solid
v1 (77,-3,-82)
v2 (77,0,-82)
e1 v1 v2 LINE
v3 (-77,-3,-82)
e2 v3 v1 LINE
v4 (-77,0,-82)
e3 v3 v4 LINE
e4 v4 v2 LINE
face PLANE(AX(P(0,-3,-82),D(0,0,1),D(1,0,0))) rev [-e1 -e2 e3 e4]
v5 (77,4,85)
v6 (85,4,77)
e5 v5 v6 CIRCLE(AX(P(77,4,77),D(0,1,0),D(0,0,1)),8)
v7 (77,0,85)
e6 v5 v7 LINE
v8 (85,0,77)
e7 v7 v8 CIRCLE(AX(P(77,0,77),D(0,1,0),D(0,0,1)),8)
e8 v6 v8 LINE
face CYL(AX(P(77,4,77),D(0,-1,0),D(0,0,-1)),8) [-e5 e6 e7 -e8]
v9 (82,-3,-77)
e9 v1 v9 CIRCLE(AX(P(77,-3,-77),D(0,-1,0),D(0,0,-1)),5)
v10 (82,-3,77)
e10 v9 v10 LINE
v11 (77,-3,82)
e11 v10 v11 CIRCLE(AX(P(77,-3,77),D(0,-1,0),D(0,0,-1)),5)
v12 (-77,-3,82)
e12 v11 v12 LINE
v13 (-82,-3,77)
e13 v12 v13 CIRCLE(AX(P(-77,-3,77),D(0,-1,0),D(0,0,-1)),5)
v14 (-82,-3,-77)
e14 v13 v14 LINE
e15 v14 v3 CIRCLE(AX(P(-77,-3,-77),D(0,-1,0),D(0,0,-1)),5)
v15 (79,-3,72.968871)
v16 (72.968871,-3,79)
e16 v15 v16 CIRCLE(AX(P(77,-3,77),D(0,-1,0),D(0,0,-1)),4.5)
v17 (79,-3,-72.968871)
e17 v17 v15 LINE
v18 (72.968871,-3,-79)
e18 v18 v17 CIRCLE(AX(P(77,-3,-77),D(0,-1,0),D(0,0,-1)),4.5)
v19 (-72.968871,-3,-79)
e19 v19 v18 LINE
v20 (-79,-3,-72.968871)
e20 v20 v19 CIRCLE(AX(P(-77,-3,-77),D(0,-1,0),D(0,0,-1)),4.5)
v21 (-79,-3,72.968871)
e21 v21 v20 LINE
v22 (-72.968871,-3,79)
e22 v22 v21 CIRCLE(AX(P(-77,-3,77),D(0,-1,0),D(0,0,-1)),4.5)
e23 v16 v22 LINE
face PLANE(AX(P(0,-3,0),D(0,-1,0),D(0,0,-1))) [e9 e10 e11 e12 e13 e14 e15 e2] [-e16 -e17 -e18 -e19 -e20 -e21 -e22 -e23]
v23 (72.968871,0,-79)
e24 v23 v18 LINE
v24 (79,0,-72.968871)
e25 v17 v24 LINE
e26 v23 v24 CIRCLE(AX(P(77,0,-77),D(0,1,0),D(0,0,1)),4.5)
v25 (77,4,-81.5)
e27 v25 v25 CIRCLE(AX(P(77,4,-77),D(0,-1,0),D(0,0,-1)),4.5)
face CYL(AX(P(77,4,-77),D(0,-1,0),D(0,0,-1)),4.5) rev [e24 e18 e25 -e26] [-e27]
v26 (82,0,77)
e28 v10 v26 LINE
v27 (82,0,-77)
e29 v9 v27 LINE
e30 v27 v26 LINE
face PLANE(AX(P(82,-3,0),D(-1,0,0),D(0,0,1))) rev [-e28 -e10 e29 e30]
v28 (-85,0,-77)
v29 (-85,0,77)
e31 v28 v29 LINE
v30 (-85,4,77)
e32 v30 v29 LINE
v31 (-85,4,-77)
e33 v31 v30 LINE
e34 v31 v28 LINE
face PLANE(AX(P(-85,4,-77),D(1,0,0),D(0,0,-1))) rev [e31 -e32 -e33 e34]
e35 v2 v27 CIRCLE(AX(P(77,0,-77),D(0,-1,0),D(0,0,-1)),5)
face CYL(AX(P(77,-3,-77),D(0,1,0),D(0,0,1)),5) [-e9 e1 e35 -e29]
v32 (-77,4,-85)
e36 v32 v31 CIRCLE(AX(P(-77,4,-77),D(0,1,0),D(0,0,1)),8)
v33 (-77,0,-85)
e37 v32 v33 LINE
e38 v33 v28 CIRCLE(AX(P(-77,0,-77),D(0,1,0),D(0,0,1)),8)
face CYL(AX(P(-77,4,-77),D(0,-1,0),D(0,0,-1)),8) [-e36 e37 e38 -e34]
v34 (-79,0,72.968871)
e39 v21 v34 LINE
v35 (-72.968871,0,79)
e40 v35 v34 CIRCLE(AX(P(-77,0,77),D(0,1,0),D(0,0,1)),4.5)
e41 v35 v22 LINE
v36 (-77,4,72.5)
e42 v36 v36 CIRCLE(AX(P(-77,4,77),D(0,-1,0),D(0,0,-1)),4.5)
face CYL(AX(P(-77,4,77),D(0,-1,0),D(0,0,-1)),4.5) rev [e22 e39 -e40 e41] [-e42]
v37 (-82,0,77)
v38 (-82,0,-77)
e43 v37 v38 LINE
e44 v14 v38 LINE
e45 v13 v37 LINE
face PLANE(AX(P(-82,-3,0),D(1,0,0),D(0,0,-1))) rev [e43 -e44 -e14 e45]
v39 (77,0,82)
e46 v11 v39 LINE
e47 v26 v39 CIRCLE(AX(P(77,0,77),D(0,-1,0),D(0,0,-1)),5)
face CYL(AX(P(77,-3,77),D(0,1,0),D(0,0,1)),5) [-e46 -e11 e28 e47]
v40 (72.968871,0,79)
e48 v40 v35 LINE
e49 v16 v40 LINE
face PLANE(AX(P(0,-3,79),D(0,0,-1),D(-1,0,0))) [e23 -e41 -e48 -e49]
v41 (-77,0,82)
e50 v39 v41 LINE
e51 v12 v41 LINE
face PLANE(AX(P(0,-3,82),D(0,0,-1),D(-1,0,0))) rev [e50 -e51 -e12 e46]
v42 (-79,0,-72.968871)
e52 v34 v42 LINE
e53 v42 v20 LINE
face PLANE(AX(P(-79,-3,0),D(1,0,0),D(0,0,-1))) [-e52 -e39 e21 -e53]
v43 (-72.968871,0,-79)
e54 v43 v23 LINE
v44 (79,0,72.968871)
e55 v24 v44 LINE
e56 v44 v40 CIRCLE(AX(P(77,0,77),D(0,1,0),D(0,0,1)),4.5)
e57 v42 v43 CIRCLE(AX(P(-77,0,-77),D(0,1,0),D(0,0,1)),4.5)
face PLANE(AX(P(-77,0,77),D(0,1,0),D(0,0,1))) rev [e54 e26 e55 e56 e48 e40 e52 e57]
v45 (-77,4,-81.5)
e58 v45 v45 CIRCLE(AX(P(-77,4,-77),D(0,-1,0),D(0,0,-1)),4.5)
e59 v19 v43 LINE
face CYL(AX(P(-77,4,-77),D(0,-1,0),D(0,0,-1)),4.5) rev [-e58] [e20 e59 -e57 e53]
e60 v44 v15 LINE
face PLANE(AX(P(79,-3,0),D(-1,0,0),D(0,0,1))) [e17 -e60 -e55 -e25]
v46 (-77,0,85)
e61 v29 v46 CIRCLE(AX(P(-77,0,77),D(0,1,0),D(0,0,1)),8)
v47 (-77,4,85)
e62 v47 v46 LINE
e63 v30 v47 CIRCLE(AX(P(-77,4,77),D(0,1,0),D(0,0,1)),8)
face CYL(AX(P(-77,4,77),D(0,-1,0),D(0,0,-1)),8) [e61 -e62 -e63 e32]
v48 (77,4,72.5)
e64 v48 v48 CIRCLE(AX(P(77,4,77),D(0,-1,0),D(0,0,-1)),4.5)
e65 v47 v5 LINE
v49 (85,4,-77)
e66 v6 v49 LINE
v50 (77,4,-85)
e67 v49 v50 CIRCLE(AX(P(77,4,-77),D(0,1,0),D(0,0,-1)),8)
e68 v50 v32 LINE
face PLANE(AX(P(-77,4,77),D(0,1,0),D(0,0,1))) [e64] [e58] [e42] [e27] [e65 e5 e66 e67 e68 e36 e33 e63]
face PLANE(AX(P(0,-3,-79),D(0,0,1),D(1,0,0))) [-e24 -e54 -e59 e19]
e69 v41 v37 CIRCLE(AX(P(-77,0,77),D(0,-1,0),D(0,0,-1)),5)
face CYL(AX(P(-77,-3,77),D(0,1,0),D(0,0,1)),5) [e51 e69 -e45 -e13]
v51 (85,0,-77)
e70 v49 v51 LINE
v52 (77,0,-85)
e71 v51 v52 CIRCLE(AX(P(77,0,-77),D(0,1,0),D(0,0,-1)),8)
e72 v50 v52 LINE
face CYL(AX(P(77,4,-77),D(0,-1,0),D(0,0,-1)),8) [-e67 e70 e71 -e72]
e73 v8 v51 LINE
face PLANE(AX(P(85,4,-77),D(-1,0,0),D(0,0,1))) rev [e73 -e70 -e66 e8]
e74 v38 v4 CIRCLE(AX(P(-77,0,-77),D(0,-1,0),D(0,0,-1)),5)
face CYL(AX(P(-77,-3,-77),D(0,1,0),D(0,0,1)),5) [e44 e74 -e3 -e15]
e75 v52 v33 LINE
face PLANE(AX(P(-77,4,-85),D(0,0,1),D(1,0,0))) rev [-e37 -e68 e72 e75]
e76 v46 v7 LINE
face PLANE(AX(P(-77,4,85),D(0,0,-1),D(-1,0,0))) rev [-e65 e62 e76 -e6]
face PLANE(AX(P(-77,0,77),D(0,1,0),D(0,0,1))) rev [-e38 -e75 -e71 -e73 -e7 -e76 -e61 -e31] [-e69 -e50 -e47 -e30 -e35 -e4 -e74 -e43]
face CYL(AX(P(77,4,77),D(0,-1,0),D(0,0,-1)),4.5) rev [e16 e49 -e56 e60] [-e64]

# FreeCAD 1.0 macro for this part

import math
import FreeCAD as App
import Part
import Sketcher

doc = App.newDocument("Part")
body = doc.addObject("PartDesign::Body", "Body")

# Sketch on XZ plane
sketch1 = doc.addObject("Sketcher::SketchObject", "Sketch")
body.addObject(sketch1)
sketch1.AttachmentSupport = (doc.XZ_Plane, [""])
sketch1.MapMode = "FlatFace"
sketch1.addGeometry(Part.LineSegment(App.Vector(77, -85, 0), App.Vector(-77, -85, 0)), False)
sketch1.addGeometry(Part.ArcOfCircle(Part.Circle(App.Vector(-77, -77, 0), App.Vector(0, 0, 1), 8), math.radians(-180), math.radians(-90)), False)
sketch1.addGeometry(Part.LineSegment(App.Vector(-85, -77, 0), App.Vector(-85, 77, 0)), False)
sketch1.addGeometry(Part.ArcOfCircle(Part.Circle(App.Vector(-77, 77, 0), App.Vector(0, 0, 1), 8), math.radians(90), math.radians(180)), False)
sketch1.addGeometry(Part.LineSegment(App.Vector(-77, 85, 0), App.Vector(77, 85, 0)), False)
sketch1.addGeometry(Part.ArcOfCircle(Part.Circle(App.Vector(77, 77, 0), App.Vector(0, 0, 1), 8), math.radians(0), math.radians(90)), False)
sketch1.addGeometry(Part.LineSegment(App.Vector(85, 77, 0), App.Vector(85, -77, 0)), False)
sketch1.addGeometry(Part.ArcOfCircle(Part.Circle(App.Vector(77, -77, 0), App.Vector(0, 0, 1), 8), math.radians(-90), math.radians(0)), False)
sketch1.addConstraint(Sketcher.Constraint("Tangent", 0, 2, 1, 2))
sketch1.addConstraint(Sketcher.Constraint("Tangent", 1, 1, 2, 1))
sketch1.addConstraint(Sketcher.Constraint("Tangent", 2, 2, 3, 2))
sketch1.addConstraint(Sketcher.Constraint("Tangent", 3, 1, 4, 1))
sketch1.addConstraint(Sketcher.Constraint("Tangent", 4, 2, 5, 2))
sketch1.addConstraint(Sketcher.Constraint("Tangent", 5, 1, 6, 1))
sketch1.addConstraint(Sketcher.Constraint("Tangent", 6, 2, 7, 2))
sketch1.addConstraint(Sketcher.Constraint("Tangent", 7, 1, 0, 1))
sketch1.addConstraint(Sketcher.Constraint("Horizontal", 0))
sketch1.addConstraint(Sketcher.Constraint("Vertical", 2))
sketch1.addConstraint(Sketcher.Constraint("Horizontal", 4))
sketch1.addConstraint(Sketcher.Constraint("Vertical", 6))
sketch1.addConstraint(Sketcher.Constraint("Equal", 1, 3))
sketch1.addConstraint(Sketcher.Constraint("Equal", 3, 5))
sketch1.addConstraint(Sketcher.Constraint("Equal", 5, 7))
sketch1.addConstraint(Sketcher.Constraint("Symmetric", 1, 3, 5, 3, -1, 1))
sketch1.addConstraint(Sketcher.Constraint("Equal", 4, 2))
sketch1.addConstraint(Sketcher.Constraint("Radius", 1, 8.0))
sketch1.addConstraint(Sketcher.Constraint("DistanceX", 0, 2, 0, 1, 154.0))
pad1 = doc.addObject("PartDesign::Pad", "Pad")
body.addObject(pad1)
pad1.Profile = sketch1
pad1.Length = 4
pad1.Reversed = True

# Sketch on XZ plane
sketch2 = doc.addObject("Sketcher::SketchObject", "Sketch001")
body.addObject(sketch2)
sketch2.AttachmentSupport = (doc.XZ_Plane, [""])
sketch2.MapMode = "FlatFace"
sketch2.addGeometry(Part.LineSegment(App.Vector(77, 82, 0), App.Vector(-77, 82, 0)), False)
sketch2.addGeometry(Part.ArcOfCircle(Part.Circle(App.Vector(-77, 77, 0), App.Vector(0, 0, 1), 5), math.radians(90), math.radians(180)), False)
sketch2.addGeometry(Part.LineSegment(App.Vector(-82, 77, 0), App.Vector(-82, -77, 0)), False)
sketch2.addGeometry(Part.ArcOfCircle(Part.Circle(App.Vector(-77, -77, 0), App.Vector(0, 0, 1), 5), math.radians(180), math.radians(270)), False)
sketch2.addGeometry(Part.LineSegment(App.Vector(-77, -82, 0), App.Vector(77, -82, 0)), False)
sketch2.addGeometry(Part.ArcOfCircle(Part.Circle(App.Vector(77, -77, 0), App.Vector(0, 0, 1), 5), math.radians(-90), math.radians(0)), False)
sketch2.addGeometry(Part.LineSegment(App.Vector(82, -77, 0), App.Vector(82, 77, 0)), False)
sketch2.addGeometry(Part.ArcOfCircle(Part.Circle(App.Vector(77, 77, 0), App.Vector(0, 0, 1), 5), math.radians(0), math.radians(90)), False)
sketch2.addGeometry(Part.ArcOfCircle(Part.Circle(App.Vector(77, 77, 0), App.Vector(0, 0, 1), 2), math.radians(0), math.radians(90)), False)
sketch2.addGeometry(Part.LineSegment(App.Vector(79, 77, 0), App.Vector(79, -77, 0)), False)
sketch2.addGeometry(Part.ArcOfCircle(Part.Circle(App.Vector(77, -77, 0), App.Vector(0, 0, 1), 2), math.radians(-90), math.radians(0)), False)
sketch2.addGeometry(Part.LineSegment(App.Vector(77, -79, 0), App.Vector(-77, -79, 0)), False)
sketch2.addGeometry(Part.ArcOfCircle(Part.Circle(App.Vector(-77, -77, 0), App.Vector(0, 0, 1), 2), math.radians(-180), math.radians(-90)), False)
sketch2.addGeometry(Part.LineSegment(App.Vector(-79, -77, 0), App.Vector(-79, 77, 0)), False)
sketch2.addGeometry(Part.ArcOfCircle(Part.Circle(App.Vector(-77, 77, 0), App.Vector(0, 0, 1), 2), math.radians(90), math.radians(180)), False)
sketch2.addGeometry(Part.LineSegment(App.Vector(-77, 79, 0), App.Vector(77, 79, 0)), False)
sketch2.addConstraint(Sketcher.Constraint("Tangent", 0, 2, 1, 1))
sketch2.addConstraint(Sketcher.Constraint("Tangent", 1, 2, 2, 1))
sketch2.addConstraint(Sketcher.Constraint("Tangent", 2, 2, 3, 1))
sketch2.addConstraint(Sketcher.Constraint("Tangent", 3, 2, 4, 1))
sketch2.addConstraint(Sketcher.Constraint("Tangent", 4, 2, 5, 1))
sketch2.addConstraint(Sketcher.Constraint("Tangent", 5, 2, 6, 1))
sketch2.addConstraint(Sketcher.Constraint("Tangent", 6, 2, 7, 1))
sketch2.addConstraint(Sketcher.Constraint("Tangent", 7, 2, 0, 1))
sketch2.addConstraint(Sketcher.Constraint("Tangent", 8, 1, 9, 1))
sketch2.addConstraint(Sketcher.Constraint("Tangent", 9, 2, 10, 2))
sketch2.addConstraint(Sketcher.Constraint("Tangent", 10, 1, 11, 1))
sketch2.addConstraint(Sketcher.Constraint("Tangent", 11, 2, 12, 2))
sketch2.addConstraint(Sketcher.Constraint("Tangent", 12, 1, 13, 1))
sketch2.addConstraint(Sketcher.Constraint("Tangent", 13, 2, 14, 2))
sketch2.addConstraint(Sketcher.Constraint("Tangent", 14, 1, 15, 1))
sketch2.addConstraint(Sketcher.Constraint("Tangent", 15, 2, 8, 2))
sketch2.addConstraint(Sketcher.Constraint("Horizontal", 0))
sketch2.addConstraint(Sketcher.Constraint("Vertical", 2))
sketch2.addConstraint(Sketcher.Constraint("Horizontal", 4))
sketch2.addConstraint(Sketcher.Constraint("Vertical", 6))
sketch2.addConstraint(Sketcher.Constraint("Vertical", 9))
sketch2.addConstraint(Sketcher.Constraint("Horizontal", 11))
sketch2.addConstraint(Sketcher.Constraint("Vertical", 13))
sketch2.addConstraint(Sketcher.Constraint("Horizontal", 15))
sketch2.addConstraint(Sketcher.Constraint("Coincident", 8, 3, 7, 3))
sketch2.addConstraint(Sketcher.Constraint("Coincident", 10, 3, 5, 3))
sketch2.addConstraint(Sketcher.Constraint("Coincident", 12, 3, 3, 3))
sketch2.addConstraint(Sketcher.Constraint("Equal", 1, 3))
sketch2.addConstraint(Sketcher.Constraint("Equal", 3, 5))
sketch2.addConstraint(Sketcher.Constraint("Equal", 5, 7))
sketch2.addConstraint(Sketcher.Constraint("Equal", 12, 14))
sketch2.addConstraint(Sketcher.Constraint("Symmetric", 1, 3, 5, 3, -1, 1))
sketch2.addConstraint(Sketcher.Constraint("Equal", 15, 2))
sketch2.addConstraint(Sketcher.Constraint("Radius", 1, 5.0))
sketch2.addConstraint(Sketcher.Constraint("Radius", 8, 2.0))
sketch2.addConstraint(Sketcher.Constraint("DistanceX", 0, 2, 0, 1, 154.0))
pad2 = doc.addObject("PartDesign::Pad", "Pad001")
body.addObject(pad2)
pad2.Profile = sketch2
pad2.Length = 3

# Sketch on XZ plane
sketch3 = doc.addObject("Sketcher::SketchObject", "Sketch002")
body.addObject(sketch3)
sketch3.AttachmentSupport = (doc.XZ_Plane, [""])
sketch3.MapMode = "FlatFace"
sketch3.AttachmentOffset = App.Placement(App.Vector(0, 0, 3), App.Rotation())
sketch3.addGeometry(Part.Circle(App.Vector(77, 77, 0), App.Vector(0, 0, 1), 4.5), False)
sketch3.addGeometry(Part.Circle(App.Vector(77, -77, 0), App.Vector(0, 0, 1), 4.5), False)
sketch3.addGeometry(Part.Circle(App.Vector(-77, -77, 0), App.Vector(0, 0, 1), 4.5), False)
sketch3.addGeometry(Part.Circle(App.Vector(-77, 77, 0), App.Vector(0, 0, 1), 4.5), False)
sketch3.addConstraint(Sketcher.Constraint("Equal", 0, 1))
sketch3.addConstraint(Sketcher.Constraint("Equal", 1, 2))
sketch3.addConstraint(Sketcher.Constraint("Equal", 2, 3))
sketch3.addConstraint(Sketcher.Constraint("Symmetric", 0, 3, 2, 3, -1, 1))
sketch3.addConstraint(Sketcher.Constraint("Symmetric", 1, 3, 3, 3, -1, 1))
sketch3.addConstraint(Sketcher.Constraint("Symmetric", 1, 3, 2, 3, -2))
sketch3.addConstraint(Sketcher.Constraint("Diameter", 0, 9.0))
sketch3.addConstraint(Sketcher.Constraint("DistanceX", -1, 1, 0, 3, 77.0))
sketch3.addConstraint(Sketcher.Constraint("DistanceY", -1, 1, 0, 3, 77.0))
pocket1 = doc.addObject("PartDesign::Pocket", "Pocket")
body.addObject(pocket1)
pocket1.Profile = sketch3
pocket1.Type = "ThroughAll"

doc.recompute()
